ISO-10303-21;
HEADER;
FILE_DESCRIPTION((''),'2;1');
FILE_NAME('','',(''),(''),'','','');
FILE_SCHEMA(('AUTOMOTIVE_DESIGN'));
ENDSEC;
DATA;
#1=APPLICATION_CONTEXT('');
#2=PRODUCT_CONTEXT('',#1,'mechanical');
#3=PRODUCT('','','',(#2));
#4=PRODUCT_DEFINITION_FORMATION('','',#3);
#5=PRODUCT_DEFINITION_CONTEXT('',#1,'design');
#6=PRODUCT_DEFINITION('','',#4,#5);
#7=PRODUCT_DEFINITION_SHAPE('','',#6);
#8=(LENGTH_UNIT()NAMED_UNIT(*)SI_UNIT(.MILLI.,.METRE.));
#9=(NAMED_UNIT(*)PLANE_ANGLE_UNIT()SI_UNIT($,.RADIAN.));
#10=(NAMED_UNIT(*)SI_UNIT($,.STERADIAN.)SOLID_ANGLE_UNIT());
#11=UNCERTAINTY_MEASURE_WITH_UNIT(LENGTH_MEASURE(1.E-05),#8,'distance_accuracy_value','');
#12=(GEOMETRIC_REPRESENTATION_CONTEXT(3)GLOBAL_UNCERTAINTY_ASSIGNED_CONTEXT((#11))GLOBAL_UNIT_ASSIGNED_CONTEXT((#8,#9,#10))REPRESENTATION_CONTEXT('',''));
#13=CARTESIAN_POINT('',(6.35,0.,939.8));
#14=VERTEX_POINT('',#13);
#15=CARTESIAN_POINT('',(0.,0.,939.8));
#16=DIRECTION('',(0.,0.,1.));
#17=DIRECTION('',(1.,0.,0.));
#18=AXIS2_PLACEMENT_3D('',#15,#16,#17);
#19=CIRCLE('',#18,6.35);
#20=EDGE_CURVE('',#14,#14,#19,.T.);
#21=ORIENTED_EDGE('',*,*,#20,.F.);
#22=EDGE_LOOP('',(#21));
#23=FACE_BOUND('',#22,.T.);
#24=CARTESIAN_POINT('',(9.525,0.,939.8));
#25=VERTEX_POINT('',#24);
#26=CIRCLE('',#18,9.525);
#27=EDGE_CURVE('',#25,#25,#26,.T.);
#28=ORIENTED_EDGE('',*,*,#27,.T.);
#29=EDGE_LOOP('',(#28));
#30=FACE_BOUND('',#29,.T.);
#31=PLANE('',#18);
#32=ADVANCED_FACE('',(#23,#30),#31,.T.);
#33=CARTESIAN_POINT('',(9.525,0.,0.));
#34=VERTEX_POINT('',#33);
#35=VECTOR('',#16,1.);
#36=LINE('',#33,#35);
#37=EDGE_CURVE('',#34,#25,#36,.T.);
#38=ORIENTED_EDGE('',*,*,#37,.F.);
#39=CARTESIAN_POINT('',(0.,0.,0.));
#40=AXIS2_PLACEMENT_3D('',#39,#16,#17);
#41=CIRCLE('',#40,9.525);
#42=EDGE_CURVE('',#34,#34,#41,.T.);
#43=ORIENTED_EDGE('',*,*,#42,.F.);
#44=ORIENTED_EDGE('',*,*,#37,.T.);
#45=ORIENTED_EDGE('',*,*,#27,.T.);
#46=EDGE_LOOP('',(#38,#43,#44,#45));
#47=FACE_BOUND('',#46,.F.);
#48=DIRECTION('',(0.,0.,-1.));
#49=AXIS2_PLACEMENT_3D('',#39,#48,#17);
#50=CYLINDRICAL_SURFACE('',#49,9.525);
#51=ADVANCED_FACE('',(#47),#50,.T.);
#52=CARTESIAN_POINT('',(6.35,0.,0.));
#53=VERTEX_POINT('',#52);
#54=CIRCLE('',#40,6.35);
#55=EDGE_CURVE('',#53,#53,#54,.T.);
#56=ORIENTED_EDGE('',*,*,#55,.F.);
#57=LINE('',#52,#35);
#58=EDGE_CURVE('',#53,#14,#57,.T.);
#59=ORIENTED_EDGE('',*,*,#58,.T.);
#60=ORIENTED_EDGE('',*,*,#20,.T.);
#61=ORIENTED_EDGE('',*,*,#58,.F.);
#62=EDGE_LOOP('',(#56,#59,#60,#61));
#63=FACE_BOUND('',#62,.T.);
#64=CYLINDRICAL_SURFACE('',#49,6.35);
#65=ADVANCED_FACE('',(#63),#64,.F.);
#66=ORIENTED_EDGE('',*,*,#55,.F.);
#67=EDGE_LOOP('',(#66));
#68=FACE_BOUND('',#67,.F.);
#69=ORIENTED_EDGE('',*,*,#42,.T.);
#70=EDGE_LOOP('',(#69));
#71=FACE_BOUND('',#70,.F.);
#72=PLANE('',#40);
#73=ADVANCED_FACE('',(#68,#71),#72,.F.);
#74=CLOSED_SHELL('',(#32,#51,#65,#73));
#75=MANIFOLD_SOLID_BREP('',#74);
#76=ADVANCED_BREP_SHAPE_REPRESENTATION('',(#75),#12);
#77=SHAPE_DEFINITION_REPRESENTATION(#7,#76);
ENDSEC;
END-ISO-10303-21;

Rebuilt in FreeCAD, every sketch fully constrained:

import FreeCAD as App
import Part
import Sketcher
from FreeCAD import Vector
Q = App.Units.Quantity

doc = App.newDocument("Part")
body = doc.addObject("PartDesign::Body", "Body")

sketch1 = doc.addObject("Sketcher::SketchObject", "Sketch")
body.addObject(sketch1)
sketch1.AttachmentSupport = (doc.XY_Plane, [""])
sketch1.MapMode = "FlatFace"
sketch1.addGeometry(Part.Circle(Vector(0, 0, 0), Vector(0, 0, 1), 9.525), False)
sketch1.addGeometry(Part.Circle(Vector(0, 0, 0), Vector(0, 0, 1), 6.35), False)
sketch1.addConstraint(Sketcher.Constraint("Coincident", 0, 3, -1, 1))
sketch1.addConstraint(Sketcher.Constraint("Coincident", 1, 3, -1, 1))
sketch1.addConstraint(Sketcher.Constraint("Diameter", 0, Q("0.75 in")))
sketch1.addConstraint(Sketcher.Constraint("Diameter", 1, Q("0.5 in")))
pad1 = doc.addObject("PartDesign::Pad", "Pad")
body.addObject(pad1)
pad1.Profile = sketch1
pad1.Length = Q("37 in")

doc.recompute()
